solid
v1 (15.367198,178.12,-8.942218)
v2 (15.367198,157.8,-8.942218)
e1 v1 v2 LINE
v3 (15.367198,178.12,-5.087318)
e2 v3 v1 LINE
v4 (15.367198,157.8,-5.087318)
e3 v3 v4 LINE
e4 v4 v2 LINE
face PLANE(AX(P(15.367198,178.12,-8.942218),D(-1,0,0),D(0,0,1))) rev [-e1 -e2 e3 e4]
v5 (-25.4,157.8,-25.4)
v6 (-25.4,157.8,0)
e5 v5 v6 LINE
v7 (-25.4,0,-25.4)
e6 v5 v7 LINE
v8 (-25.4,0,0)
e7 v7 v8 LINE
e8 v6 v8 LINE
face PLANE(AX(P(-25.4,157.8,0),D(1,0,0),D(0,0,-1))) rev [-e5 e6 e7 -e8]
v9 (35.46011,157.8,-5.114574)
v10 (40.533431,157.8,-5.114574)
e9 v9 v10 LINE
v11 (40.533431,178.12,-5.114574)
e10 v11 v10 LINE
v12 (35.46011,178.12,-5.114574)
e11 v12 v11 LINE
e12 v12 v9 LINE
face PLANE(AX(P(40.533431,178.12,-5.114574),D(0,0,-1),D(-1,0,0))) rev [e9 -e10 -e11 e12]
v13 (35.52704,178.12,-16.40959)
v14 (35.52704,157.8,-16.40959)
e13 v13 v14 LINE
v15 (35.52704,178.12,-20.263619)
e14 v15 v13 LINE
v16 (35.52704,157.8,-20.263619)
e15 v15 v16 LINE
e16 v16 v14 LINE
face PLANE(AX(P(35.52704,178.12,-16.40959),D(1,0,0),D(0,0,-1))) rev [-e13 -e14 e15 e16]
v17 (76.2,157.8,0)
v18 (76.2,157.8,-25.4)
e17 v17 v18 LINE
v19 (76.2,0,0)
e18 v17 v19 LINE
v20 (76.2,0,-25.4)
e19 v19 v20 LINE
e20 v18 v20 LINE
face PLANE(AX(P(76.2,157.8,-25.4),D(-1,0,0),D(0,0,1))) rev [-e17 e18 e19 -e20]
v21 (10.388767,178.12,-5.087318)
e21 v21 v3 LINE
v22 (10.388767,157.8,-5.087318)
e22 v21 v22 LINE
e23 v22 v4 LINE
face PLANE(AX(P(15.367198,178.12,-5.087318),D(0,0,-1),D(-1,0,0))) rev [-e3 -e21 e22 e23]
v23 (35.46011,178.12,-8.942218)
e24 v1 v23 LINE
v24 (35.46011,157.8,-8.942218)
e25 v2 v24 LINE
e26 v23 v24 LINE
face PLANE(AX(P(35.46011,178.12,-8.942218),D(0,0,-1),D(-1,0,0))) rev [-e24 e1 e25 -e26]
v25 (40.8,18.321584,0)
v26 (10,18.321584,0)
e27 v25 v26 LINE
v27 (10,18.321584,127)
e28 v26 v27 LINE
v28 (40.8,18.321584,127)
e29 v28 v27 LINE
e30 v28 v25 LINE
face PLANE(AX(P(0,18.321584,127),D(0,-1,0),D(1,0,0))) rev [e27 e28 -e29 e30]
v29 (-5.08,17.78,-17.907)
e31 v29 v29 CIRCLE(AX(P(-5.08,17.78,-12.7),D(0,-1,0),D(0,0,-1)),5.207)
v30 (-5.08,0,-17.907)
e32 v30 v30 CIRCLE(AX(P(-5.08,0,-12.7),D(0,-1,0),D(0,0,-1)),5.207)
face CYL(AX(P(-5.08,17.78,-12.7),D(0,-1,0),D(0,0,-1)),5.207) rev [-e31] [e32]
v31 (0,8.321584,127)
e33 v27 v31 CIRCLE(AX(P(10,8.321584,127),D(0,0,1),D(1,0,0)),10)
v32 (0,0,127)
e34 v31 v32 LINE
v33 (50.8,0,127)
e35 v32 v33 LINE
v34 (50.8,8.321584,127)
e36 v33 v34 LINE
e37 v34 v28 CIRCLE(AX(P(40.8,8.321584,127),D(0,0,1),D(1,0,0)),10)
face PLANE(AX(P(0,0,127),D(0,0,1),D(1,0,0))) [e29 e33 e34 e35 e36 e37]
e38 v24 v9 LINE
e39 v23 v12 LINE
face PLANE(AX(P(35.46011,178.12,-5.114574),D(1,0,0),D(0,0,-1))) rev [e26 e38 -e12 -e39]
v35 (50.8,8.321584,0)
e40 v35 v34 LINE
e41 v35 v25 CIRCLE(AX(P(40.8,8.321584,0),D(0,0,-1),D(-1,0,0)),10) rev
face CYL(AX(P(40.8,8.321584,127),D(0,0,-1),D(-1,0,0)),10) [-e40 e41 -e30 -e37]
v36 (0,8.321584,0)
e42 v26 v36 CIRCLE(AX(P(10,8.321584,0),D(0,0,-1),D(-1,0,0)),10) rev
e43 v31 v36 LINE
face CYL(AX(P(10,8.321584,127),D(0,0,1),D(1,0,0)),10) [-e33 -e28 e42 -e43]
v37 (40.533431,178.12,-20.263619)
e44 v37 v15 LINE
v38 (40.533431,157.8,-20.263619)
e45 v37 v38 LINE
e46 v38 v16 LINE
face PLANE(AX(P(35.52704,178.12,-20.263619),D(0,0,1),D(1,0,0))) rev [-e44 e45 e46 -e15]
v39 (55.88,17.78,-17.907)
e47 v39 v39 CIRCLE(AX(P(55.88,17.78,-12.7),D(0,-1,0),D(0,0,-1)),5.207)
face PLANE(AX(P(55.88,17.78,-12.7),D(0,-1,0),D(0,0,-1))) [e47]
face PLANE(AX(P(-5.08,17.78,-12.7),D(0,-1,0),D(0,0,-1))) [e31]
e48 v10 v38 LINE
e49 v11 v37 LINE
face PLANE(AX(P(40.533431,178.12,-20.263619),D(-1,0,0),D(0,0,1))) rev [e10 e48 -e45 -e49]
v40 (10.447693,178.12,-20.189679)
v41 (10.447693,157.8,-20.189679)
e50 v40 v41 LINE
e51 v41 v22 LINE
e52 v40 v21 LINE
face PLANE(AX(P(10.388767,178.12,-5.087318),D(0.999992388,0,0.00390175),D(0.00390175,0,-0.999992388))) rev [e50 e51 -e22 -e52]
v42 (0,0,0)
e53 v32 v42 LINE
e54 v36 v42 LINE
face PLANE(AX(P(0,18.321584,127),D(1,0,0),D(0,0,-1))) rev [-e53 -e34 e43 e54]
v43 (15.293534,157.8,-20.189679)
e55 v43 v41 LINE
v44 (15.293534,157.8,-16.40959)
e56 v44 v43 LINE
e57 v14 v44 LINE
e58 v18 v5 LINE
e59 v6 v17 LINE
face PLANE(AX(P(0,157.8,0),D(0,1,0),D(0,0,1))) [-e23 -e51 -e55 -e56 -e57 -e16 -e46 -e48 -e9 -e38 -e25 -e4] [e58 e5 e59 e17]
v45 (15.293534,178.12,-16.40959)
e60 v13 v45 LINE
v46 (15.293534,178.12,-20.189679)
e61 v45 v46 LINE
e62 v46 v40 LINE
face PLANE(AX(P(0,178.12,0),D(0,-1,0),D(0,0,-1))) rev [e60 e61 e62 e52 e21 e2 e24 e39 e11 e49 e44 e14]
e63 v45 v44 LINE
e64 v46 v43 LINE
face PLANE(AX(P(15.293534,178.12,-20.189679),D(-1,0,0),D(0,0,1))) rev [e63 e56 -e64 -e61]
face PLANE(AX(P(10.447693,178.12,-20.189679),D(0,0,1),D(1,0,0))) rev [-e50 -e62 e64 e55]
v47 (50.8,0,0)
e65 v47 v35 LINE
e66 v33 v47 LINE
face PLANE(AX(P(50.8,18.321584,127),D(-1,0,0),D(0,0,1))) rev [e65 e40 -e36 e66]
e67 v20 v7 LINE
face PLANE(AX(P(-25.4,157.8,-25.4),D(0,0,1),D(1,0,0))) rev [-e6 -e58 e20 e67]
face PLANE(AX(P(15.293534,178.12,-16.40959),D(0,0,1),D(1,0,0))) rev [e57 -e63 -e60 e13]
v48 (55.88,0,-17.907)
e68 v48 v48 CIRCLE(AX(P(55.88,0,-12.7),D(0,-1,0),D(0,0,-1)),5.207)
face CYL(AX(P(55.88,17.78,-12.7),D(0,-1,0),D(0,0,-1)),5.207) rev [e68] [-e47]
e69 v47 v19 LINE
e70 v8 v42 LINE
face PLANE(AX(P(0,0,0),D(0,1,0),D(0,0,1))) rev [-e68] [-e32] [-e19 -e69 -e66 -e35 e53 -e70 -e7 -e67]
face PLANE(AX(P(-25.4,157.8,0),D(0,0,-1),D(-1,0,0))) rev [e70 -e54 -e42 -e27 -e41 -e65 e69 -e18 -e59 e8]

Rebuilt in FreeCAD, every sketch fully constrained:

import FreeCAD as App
import Part
import Sketcher
Q = App.Units.Quantity


def edges_at(feature, points):
    """Names of the edges that pass closest to the given points."""
    edges = feature.Shape.Edges
    near = lambda p: min(range(len(edges)), key=lambda i: edges[i].distToShape(Part.Vertex(*p))[0])
    return sorted({f"Edge{near(p) + 1}" for p in points})


def add_polygon(sketch, points):
    """Adds a closed chain of lines whose ends are joined by coincident constraints."""
    first, n = sketch.GeometryCount, len(points)
    for a, b in zip(points, points[1:] + points[:1]):
        sketch.addGeometry(Part.LineSegment(App.Vector(*a, 0), App.Vector(*b, 0)), False)
    for i in range(n):
        sketch.addConstraint(Sketcher.Constraint("Coincident", first + i, 2, first + (i + 1) % n, 1))

doc = App.newDocument("Part")
params = doc.addObject("Spreadsheet::Sheet", "Params")
for row, (alias, value) in enumerate([
    ("sketch1_width", "4 in"),
    ("sketch1_height", "1 in"),
    ("pad1_length", "157.8 mm"),
    ("pad2_length", "0.8 in"),
    ("sketch3_diameter", "0.41 in"),
    ("pocket1_length", "0.7 in"),
    ("sketch4_width", "2 in"),
    ("pad3_length", "5 in"),
    ("fillet_radius", "10 mm"),
    ("fillet2_radius", "10 mm"),
], start=1):
    params.set(f"A{row}", alias)
    params.set(f"B{row}", "=" + value)
    params.setAlias(f"B{row}", alias)

body = doc.addObject("PartDesign::Body", "Body")

sketch1 = body.newObject("Sketcher::SketchObject", "Sketch")
sketch1.AttachmentSupport = (doc.getObject("XZ_Plane"), [""])
sketch1.MapMode = "FlatFace"
add_polygon(sketch1, [(-25, -25), (-25, 0), (76, 0), (76, -25)])
sketch1.addConstraint([
    Sketcher.Constraint("Vertical", 0),
    Sketcher.Constraint("Horizontal", 1),
    Sketcher.Constraint("Vertical", 2),
    Sketcher.Constraint("Horizontal", 3),
    Sketcher.Constraint("PointOnObject", 0, 2, -1),
    Sketcher.Constraint("DistanceX", 1, 1, 1, 2, Q("4 in")),
    Sketcher.Constraint("DistanceY", 0, 1, 0, 2, Q("1 in")),
    Sketcher.Constraint("DistanceX", 0, 2, -1, 1, Q("1 in")),
])
sketch1.setExpression("Constraints[9]", "Params.sketch1_width")
sketch1.setExpression("Constraints[10]", "Params.sketch1_height")
pad1 = body.newObject("PartDesign::Pad", "Pad")
pad1.Profile = sketch1
pad1.setExpression("Length", "Params.pad1_length")
pad1.Reversed = True

sketch2 = body.newObject("Sketcher::SketchObject", "Sketch001")
sketch2.AttachmentSupport = (doc.getObject("XZ_Plane"), [""])
sketch2.MapMode = "FlatFace"
sketch2.AttachmentOffset = App.Placement(App.Vector(0, 0, -157.8), App.Rotation())
add_polygon(sketch2, [(15.3, -20.2), (10.4, -20.2), (10.4, -5.1), (15.4, -5.1), (15.4, -8.9), (35.5, -8.9), (35.5, -5.1), (40.5, -5.1), (40.5, -20.3), (35.5, -20.3), (35.5, -16.4), (15.3, -16.4)])
sketch2.addConstraint([
    Sketcher.Constraint("Horizontal", 0),
    Sketcher.Constraint("Horizontal", 2),
    Sketcher.Constraint("Vertical", 3),
    Sketcher.Constraint("Horizontal", 4),
    Sketcher.Constraint("Vertical", 5),
    Sketcher.Constraint("Horizontal", 6),
    Sketcher.Constraint("Vertical", 7),
    Sketcher.Constraint("Horizontal", 8),
    Sketcher.Constraint("Vertical", 9),
    Sketcher.Constraint("Horizontal", 10),
    Sketcher.Constraint("Vertical", 11),
    Sketcher.Constraint("DistanceY", 3, 2, 3, 1, 3.854899),
    Sketcher.Constraint("DistanceX", 10, 2, 3, 2, Q("0.0029001 in")),
    Sketcher.Constraint("DistanceX", 0, 2, 0, 1, 4.845841),
    Sketcher.Constraint("DistanceX", 2, 1, 2, 2, 4.978431),
    Sketcher.Constraint("DistanceX", 6, 1, 6, 2, 5.073321),
    Sketcher.Constraint("DistanceX", 8, 2, 8, 1, 5.00639),
    Sketcher.Constraint("DistanceY", 9, 1, 9, 2, 3.85403),
    Sketcher.Constraint("DistanceY", 11, 2, 11, 1, 3.780089),
    Sketcher.Constraint("DistanceY", 7, 2, 4, 2, 11.321401),
    Sketcher.Constraint("DistanceX", 4, 1, 4, 2, 20.092913),
    Sketcher.Constraint("DistanceY", 5, 1, 5, 2, 3.827644),
    Sketcher.Constraint("DistanceY", 0, 2, -1, 1, 20.189679),
    Sketcher.Constraint("DistanceX", -1, 1, 4, 2, 35.46011),
])
pad2 = body.newObject("PartDesign::Pad", "Pad001")
pad2.Profile = sketch2
pad2.setExpression("Length", "Params.pad2_length")
pad2.Reversed = True

sketch3 = body.newObject("Sketcher::SketchObject", "Sketch002")
sketch3.AttachmentSupport = (doc.getObject("XZ_Plane"), [""])
sketch3.MapMode = "FlatFace"
sketch3.addGeometry([
    Part.Circle(App.Vector(-5, -13, 0), App.Vector(0, 0, 1), 5),
    Part.Circle(App.Vector(56, -13, 0), App.Vector(0, 0, 1), 5),
], False)
sketch3.addConstraint([
    Sketcher.Constraint("Equal", 0, 1),
    Sketcher.Constraint("Horizontal", 0, 3, 1, 3),
    Sketcher.Constraint("Diameter", 0, Q("0.41 in")),
    Sketcher.Constraint("DistanceX", 0, 3, -1, 1, Q("0.2 in")),
    Sketcher.Constraint("DistanceY", 0, 3, -1, 1, Q("0.5 in")),
    Sketcher.Constraint("DistanceX", -1, 1, 1, 3, Q("2.2 in")),
])
sketch3.setExpression("Constraints[2]", "Params.sketch3_diameter")
pocket1 = body.newObject("PartDesign::Pocket", "Pocket")
pocket1.Profile = sketch3
pocket1.setExpression("Length", "Params.pocket1_length")

sketch4 = body.newObject("Sketcher::SketchObject", "Sketch003")
sketch4.AttachmentSupport = (doc.getObject("XY_Plane"), [""])
sketch4.MapMode = "FlatFace"
add_polygon(sketch4, [(0, 18), (0, 0), (51, 0), (51, 18)])
sketch4.addConstraint([
    Sketcher.Constraint("Vertical", 0),
    Sketcher.Constraint("Horizontal", 1),
    Sketcher.Constraint("Vertical", 2),
    Sketcher.Constraint("Horizontal", 3),
    Sketcher.Constraint("Coincident", 0, 2, -1, 1),
    Sketcher.Constraint("DistanceX", 1, 1, 1, 2, Q("2 in")),
    Sketcher.Constraint("DistanceY", 0, 2, 0, 1, 18.321584),
])
sketch4.setExpression("Constraints[9]", "Params.sketch4_width")
pad3 = body.newObject("PartDesign::Pad", "Pad002")
pad3.Profile = sketch4
pad3.setExpression("Length", "Params.pad3_length")
doc.recompute()

fillet = body.newObject("PartDesign::Fillet", "Fillet")
fillet.Base = (pad3, edges_at(pad3, [(50.8, 18.322, 63.5)]))
fillet.setExpression("Radius", "Params.fillet_radius")
doc.recompute()

fillet2 = body.newObject("PartDesign::Fillet", "Fillet001")
fillet2.Base = (fillet, edges_at(fillet, [(0, 18.322, 63.5)]))
fillet2.setExpression("Radius", "Params.fillet2_radius")

doc.recompute()
